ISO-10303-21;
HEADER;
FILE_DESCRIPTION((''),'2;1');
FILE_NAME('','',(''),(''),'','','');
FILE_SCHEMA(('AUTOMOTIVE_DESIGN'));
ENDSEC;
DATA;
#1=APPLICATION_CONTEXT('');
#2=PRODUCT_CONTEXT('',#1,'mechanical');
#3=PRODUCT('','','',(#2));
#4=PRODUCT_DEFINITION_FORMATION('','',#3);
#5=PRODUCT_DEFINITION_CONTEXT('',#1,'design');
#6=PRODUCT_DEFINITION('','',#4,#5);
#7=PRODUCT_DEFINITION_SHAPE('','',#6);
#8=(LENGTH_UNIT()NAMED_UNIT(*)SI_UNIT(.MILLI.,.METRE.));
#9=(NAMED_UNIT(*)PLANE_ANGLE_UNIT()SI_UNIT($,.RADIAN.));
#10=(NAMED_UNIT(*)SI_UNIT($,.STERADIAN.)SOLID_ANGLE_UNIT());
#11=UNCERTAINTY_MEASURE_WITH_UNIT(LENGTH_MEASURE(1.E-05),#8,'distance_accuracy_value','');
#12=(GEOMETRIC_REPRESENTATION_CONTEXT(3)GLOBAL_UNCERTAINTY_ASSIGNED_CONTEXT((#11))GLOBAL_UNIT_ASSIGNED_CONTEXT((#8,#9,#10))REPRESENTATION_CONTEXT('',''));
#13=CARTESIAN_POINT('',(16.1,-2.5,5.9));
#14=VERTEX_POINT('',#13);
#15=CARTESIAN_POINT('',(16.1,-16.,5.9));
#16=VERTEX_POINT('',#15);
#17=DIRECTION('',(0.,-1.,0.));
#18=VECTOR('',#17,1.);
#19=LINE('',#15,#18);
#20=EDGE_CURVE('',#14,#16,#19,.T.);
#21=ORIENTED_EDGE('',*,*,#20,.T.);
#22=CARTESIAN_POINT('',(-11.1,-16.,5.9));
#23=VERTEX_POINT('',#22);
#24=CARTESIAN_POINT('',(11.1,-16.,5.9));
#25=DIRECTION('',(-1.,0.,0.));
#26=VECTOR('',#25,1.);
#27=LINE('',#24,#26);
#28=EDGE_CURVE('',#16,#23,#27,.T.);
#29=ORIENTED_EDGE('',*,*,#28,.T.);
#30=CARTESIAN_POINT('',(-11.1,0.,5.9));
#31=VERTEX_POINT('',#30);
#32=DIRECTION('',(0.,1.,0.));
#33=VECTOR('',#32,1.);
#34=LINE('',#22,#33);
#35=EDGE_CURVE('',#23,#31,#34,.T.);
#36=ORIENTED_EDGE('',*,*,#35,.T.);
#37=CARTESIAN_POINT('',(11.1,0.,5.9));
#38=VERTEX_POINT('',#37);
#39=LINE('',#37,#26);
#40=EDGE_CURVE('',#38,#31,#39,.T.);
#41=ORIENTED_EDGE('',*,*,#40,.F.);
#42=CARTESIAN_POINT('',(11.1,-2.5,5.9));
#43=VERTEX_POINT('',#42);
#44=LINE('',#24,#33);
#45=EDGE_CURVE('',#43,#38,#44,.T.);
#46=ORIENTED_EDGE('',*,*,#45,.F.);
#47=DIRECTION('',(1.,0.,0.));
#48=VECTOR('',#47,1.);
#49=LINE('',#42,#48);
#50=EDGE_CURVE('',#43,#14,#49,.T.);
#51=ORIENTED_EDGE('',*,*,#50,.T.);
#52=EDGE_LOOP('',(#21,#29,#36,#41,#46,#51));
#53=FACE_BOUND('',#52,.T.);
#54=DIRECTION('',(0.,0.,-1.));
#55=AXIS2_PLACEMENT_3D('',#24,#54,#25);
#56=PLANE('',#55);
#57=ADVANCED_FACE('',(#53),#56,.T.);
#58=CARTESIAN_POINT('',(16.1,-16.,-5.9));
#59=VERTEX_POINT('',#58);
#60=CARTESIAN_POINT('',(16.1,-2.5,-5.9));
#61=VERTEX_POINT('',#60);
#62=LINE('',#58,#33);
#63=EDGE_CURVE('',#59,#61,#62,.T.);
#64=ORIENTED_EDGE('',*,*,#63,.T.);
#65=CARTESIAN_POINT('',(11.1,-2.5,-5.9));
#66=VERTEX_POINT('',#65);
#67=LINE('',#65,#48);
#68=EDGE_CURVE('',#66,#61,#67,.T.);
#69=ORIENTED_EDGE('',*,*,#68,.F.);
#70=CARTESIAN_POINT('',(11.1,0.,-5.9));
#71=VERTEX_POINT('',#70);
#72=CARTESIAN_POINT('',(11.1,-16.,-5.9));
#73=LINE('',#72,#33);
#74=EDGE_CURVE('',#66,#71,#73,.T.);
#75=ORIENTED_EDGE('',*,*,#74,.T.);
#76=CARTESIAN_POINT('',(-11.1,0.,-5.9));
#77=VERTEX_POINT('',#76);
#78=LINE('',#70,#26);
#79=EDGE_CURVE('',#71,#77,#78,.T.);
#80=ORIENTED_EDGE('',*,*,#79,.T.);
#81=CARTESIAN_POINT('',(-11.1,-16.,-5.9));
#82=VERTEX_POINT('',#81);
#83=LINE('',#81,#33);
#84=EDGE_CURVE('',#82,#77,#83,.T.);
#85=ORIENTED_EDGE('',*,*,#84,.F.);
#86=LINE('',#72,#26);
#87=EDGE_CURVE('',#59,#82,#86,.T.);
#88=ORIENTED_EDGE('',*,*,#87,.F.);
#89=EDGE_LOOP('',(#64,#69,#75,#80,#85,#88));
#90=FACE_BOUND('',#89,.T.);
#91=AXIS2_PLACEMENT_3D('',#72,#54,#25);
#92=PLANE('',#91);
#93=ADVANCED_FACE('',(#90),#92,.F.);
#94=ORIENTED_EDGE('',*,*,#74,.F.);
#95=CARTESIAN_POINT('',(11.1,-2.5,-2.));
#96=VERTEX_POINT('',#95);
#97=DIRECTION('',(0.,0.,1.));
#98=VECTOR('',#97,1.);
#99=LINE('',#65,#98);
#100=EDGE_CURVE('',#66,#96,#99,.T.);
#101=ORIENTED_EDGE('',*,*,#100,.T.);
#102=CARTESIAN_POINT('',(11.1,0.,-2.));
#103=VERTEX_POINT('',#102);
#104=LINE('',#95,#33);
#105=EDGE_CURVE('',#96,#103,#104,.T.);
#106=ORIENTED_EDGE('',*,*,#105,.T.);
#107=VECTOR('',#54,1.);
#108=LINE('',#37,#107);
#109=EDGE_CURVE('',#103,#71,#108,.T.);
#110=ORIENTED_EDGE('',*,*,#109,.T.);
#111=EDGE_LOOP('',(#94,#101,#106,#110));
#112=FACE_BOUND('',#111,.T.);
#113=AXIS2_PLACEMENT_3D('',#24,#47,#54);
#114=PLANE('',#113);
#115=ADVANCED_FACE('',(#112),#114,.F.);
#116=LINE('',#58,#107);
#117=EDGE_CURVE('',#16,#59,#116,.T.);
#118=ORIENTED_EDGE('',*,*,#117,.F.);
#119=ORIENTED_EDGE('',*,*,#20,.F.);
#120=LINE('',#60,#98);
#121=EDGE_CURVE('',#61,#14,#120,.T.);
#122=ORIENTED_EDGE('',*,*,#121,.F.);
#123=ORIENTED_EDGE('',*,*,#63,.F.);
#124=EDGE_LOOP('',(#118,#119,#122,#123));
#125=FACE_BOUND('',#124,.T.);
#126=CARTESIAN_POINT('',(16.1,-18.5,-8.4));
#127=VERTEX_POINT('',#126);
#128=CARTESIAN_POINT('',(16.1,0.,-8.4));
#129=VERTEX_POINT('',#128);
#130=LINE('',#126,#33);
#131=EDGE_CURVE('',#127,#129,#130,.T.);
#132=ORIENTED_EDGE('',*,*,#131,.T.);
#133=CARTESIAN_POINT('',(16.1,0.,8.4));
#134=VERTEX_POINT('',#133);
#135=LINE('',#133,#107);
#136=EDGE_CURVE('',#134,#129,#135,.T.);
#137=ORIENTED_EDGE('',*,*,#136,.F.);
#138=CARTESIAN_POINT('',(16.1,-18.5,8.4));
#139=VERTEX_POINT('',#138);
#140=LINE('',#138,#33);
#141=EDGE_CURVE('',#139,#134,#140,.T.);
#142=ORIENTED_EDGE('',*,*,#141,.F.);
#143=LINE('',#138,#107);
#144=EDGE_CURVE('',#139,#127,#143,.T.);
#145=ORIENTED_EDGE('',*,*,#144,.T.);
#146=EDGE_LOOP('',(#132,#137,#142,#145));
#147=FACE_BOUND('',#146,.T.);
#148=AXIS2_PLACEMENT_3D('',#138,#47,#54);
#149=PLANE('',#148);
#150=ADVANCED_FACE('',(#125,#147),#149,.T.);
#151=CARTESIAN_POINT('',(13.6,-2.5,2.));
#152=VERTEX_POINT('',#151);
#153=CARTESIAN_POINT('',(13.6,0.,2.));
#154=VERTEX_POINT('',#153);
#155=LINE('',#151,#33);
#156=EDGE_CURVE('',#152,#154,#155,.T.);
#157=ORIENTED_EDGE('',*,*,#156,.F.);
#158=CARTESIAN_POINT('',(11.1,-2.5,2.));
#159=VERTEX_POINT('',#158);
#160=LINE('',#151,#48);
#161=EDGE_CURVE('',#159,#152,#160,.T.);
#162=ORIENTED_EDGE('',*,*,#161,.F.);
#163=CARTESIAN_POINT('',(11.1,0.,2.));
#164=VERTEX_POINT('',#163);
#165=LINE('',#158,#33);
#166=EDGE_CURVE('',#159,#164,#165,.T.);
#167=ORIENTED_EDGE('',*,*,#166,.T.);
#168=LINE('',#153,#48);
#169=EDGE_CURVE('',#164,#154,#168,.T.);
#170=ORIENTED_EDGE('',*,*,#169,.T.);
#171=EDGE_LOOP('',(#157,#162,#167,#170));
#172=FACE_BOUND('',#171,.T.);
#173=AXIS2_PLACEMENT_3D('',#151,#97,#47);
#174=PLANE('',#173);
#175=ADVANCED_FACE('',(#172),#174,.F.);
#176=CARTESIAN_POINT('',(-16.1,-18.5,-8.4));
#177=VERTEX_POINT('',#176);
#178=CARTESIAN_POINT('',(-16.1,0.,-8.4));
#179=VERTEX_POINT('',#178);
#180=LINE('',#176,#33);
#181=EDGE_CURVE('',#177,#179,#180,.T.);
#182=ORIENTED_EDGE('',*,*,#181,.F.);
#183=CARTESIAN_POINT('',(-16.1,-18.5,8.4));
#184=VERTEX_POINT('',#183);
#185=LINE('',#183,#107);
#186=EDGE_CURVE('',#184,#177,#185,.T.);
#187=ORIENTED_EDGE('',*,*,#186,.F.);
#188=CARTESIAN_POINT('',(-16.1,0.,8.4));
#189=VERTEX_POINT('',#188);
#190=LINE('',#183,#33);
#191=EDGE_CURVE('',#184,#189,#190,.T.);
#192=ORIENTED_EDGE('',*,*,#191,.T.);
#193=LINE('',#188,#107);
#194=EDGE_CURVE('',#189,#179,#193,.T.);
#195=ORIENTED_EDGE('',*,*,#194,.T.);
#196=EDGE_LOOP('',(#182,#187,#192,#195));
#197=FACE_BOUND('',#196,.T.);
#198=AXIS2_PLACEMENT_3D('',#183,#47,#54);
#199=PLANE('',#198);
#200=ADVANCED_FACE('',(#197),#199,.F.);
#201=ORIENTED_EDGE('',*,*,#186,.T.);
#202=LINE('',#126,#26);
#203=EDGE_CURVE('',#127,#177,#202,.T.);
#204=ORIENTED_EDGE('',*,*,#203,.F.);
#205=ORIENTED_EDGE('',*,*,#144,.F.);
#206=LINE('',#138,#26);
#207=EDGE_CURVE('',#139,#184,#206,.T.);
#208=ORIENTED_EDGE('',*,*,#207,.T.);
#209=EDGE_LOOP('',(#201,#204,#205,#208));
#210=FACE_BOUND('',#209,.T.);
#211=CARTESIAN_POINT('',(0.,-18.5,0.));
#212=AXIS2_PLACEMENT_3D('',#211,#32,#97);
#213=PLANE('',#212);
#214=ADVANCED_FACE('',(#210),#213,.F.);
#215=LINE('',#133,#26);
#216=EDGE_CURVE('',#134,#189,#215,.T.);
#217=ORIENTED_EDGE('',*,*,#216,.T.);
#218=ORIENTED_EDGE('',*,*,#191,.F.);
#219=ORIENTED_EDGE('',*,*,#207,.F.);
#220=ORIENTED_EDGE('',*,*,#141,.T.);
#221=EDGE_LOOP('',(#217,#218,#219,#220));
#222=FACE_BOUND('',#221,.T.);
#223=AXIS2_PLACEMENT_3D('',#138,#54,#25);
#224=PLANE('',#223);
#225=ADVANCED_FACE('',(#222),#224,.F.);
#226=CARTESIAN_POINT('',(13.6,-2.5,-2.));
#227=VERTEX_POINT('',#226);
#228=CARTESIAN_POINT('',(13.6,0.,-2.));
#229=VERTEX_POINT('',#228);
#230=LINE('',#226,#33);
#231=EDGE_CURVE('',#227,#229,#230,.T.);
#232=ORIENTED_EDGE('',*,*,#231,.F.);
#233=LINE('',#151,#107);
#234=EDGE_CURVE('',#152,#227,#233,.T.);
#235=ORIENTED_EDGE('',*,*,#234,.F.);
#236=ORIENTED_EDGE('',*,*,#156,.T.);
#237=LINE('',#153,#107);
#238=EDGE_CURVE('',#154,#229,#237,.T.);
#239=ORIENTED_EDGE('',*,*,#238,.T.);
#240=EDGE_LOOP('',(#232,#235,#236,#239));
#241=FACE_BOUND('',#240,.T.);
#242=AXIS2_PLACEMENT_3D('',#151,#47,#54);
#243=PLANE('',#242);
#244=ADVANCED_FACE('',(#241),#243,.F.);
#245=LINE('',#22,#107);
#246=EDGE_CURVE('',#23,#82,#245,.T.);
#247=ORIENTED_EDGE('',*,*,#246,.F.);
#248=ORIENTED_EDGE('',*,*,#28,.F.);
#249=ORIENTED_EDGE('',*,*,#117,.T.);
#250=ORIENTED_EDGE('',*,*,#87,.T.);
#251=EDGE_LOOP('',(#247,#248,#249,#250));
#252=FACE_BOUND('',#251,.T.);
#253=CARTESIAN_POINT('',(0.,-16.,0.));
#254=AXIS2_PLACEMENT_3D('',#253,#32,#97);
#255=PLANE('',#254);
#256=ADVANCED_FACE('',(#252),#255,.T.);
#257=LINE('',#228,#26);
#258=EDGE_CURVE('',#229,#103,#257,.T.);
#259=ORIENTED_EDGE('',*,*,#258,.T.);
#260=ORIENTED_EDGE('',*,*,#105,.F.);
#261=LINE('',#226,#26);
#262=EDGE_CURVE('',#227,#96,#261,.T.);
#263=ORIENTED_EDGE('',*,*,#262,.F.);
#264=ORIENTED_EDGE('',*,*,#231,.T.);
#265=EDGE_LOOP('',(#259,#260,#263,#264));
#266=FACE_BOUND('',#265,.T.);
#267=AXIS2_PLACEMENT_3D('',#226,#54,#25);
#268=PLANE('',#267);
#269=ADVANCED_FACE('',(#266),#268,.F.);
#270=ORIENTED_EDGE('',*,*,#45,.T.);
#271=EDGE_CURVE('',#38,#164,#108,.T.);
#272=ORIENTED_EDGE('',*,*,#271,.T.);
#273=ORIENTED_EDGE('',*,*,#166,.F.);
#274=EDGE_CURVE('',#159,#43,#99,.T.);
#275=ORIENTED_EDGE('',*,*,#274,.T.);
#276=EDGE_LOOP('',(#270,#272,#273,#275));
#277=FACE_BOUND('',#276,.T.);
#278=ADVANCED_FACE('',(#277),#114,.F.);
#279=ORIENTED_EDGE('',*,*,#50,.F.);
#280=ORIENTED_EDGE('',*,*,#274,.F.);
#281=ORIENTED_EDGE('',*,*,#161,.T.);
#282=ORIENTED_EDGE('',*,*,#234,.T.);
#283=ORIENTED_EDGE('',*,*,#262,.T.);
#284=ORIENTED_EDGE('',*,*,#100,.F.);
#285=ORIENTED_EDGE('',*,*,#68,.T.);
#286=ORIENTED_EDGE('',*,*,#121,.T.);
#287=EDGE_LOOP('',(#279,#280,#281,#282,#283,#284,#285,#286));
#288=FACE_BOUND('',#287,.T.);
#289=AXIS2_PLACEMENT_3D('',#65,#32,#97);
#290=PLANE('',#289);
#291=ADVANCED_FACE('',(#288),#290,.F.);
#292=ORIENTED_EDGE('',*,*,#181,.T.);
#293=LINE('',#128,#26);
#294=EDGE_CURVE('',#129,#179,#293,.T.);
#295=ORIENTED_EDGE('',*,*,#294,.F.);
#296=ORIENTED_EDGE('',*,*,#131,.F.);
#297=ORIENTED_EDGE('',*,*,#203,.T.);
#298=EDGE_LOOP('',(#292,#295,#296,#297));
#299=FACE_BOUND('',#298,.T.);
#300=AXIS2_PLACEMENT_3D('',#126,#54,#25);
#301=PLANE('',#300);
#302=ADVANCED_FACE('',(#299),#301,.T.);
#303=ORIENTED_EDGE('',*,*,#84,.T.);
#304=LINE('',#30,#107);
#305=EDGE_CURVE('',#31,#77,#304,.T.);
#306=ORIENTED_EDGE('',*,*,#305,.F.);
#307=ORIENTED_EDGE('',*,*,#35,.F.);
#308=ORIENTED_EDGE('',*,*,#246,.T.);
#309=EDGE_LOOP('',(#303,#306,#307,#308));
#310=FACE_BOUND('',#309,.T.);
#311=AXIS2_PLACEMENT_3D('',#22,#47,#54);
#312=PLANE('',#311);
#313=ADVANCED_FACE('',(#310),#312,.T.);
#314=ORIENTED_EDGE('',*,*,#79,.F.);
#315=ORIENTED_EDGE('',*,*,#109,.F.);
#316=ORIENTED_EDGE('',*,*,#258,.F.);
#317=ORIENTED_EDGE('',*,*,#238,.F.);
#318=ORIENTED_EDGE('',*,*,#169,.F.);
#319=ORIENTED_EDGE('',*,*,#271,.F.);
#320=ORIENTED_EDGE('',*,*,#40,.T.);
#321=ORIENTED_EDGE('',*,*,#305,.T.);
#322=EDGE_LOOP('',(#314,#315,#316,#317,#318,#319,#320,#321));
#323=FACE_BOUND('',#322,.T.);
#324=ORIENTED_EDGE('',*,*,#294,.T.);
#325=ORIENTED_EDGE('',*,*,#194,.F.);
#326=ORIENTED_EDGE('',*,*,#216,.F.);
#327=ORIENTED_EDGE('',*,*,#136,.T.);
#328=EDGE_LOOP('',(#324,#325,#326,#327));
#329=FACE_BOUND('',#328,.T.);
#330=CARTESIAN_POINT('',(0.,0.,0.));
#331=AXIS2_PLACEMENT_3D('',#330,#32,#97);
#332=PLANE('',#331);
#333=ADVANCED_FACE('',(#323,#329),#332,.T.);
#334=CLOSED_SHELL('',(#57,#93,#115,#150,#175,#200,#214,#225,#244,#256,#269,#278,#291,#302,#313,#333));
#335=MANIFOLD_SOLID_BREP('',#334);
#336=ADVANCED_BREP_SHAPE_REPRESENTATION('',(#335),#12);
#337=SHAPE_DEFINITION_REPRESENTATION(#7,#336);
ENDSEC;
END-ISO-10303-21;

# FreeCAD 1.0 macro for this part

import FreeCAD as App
import Part
import Sketcher
Q = App.Units.Quantity


def add_polygon(sketch, points):
    """Adds a closed chain of lines whose ends are joined by coincident constraints."""
    first, n = sketch.GeometryCount, len(points)
    for a, b in zip(points, points[1:] + points[:1]):
        sketch.addGeometry(Part.LineSegment(App.Vector(*a, 0), App.Vector(*b, 0)), False)
    for i in range(n):
        sketch.addConstraint(Sketcher.Constraint("Coincident", first + i, 2, first + (i + 1) % n, 1))

doc = App.newDocument("Part")
body = doc.addObject("PartDesign::Body", "Body")

sketch1 = body.newObject("Sketcher::SketchObject", "Sketch")
sketch1.AttachmentSupport = (doc.getObject("XZ_Plane"), [""])
sketch1.MapMode = "FlatFace"
add_polygon(sketch1, [(-16, -8), (-16, 8), (16, 8), (16, -8)])
sketch1.addConstraint([
    Sketcher.Constraint("Vertical", 0),
    Sketcher.Constraint("Horizontal", 1),
    Sketcher.Constraint("Vertical", 2),
    Sketcher.Constraint("Horizontal", 3),
    Sketcher.Constraint("Symmetric", 0, 2, 2, 2, -1, 1),
    Sketcher.Constraint("DistanceX", 1, 1, 1, 2, Q("32.2 mm")),
    Sketcher.Constraint("DistanceY", 0, 1, 0, 2, Q("16.8 mm")),
])
pad1 = body.newObject("PartDesign::Pad", "Pad")
pad1.Profile = sketch1
pad1.Length = 18.5

sketch2 = body.newObject("Sketcher::SketchObject", "Sketch001")
sketch2.AttachmentSupport = (doc.getObject("XZ_Plane"), [""])
sketch2.MapMode = "FlatFace"
add_polygon(sketch2, [(-11, -6), (-11, 6), (11, 6), (11, -6)])
sketch2.addConstraint([
    Sketcher.Constraint("Vertical", 0),
    Sketcher.Constraint("Horizontal", 1),
    Sketcher.Constraint("Vertical", 2),
    Sketcher.Constraint("Horizontal", 3),
    Sketcher.Constraint("Symmetric", 0, 2, 2, 2, -1, 1),
    Sketcher.Constraint("DistanceX", 1, 1, 1, 2, Q("22.2 mm")),
    Sketcher.Constraint("DistanceY", 0, 1, 0, 2, Q("11.8 mm")),
])
pocket1 = body.newObject("PartDesign::Pocket", "Pocket")
pocket1.Profile = sketch2
pocket1.Length = 16
pocket1.Reversed = True

sketch3 = body.newObject("Sketcher::SketchObject", "Sketch002")
sketch3.AttachmentSupport = (doc.getObject("YZ_Plane"), [""])
sketch3.MapMode = "FlatFace"
sketch3.AttachmentOffset = App.Placement(App.Vector(0, 0, 16.1), App.Rotation())
add_polygon(sketch3, [(-2, 6), (-16, 6), (-16, -6), (-2, -6)])
sketch3.addConstraint([
    Sketcher.Constraint("Horizontal", 0),
    Sketcher.Constraint("Vertical", 1),
    Sketcher.Constraint("Horizontal", 2),
    Sketcher.Constraint("Vertical", 3),
    Sketcher.Constraint("DistanceX", 0, 2, 0, 1, Q("13.5 mm")),
    Sketcher.Constraint("DistanceY", 1, 2, 1, 1, Q("11.8 mm")),
    Sketcher.Constraint("DistanceX", 0, 2, -1, 1, Q("16 mm")),
    Sketcher.Constraint("DistanceY", -1, 1, 0, 2, Q("5.9 mm")),
])
pocket2 = body.newObject("PartDesign::Pocket", "Pocket001")
pocket2.Profile = sketch3
pocket2.Length = 5

sketch4 = body.newObject("Sketcher::SketchObject", "Sketch003")
sketch4.AttachmentSupport = (doc.getObject("XZ_Plane"), [""])
sketch4.MapMode = "FlatFace"
add_polygon(sketch4, [(11.1, -2), (11.1, 2), (13.6, 2), (13.6, -2)])
sketch4.addConstraint([
    Sketcher.Constraint("Vertical", 0),
    Sketcher.Constraint("Horizontal", 1),
    Sketcher.Constraint("Vertical", 2),
    Sketcher.Constraint("Horizontal", 3),
    Sketcher.Constraint("DistanceY", 0, 1, 0, 2, Q("4 mm")),
    Sketcher.Constraint("DistanceX", 1, 1, 1, 2, Q("2.5 mm")),
    Sketcher.Constraint("DistanceY", -1, 1, 0, 2, Q("2 mm")),
    Sketcher.Constraint("DistanceX", -1, 1, 0, 2, Q("11.1 mm")),
])
pocket3 = body.newObject("PartDesign::Pocket", "Pocket002")
pocket3.Profile = sketch4
pocket3.Length = 2.5
pocket3.Reversed = True

doc.recompute()
